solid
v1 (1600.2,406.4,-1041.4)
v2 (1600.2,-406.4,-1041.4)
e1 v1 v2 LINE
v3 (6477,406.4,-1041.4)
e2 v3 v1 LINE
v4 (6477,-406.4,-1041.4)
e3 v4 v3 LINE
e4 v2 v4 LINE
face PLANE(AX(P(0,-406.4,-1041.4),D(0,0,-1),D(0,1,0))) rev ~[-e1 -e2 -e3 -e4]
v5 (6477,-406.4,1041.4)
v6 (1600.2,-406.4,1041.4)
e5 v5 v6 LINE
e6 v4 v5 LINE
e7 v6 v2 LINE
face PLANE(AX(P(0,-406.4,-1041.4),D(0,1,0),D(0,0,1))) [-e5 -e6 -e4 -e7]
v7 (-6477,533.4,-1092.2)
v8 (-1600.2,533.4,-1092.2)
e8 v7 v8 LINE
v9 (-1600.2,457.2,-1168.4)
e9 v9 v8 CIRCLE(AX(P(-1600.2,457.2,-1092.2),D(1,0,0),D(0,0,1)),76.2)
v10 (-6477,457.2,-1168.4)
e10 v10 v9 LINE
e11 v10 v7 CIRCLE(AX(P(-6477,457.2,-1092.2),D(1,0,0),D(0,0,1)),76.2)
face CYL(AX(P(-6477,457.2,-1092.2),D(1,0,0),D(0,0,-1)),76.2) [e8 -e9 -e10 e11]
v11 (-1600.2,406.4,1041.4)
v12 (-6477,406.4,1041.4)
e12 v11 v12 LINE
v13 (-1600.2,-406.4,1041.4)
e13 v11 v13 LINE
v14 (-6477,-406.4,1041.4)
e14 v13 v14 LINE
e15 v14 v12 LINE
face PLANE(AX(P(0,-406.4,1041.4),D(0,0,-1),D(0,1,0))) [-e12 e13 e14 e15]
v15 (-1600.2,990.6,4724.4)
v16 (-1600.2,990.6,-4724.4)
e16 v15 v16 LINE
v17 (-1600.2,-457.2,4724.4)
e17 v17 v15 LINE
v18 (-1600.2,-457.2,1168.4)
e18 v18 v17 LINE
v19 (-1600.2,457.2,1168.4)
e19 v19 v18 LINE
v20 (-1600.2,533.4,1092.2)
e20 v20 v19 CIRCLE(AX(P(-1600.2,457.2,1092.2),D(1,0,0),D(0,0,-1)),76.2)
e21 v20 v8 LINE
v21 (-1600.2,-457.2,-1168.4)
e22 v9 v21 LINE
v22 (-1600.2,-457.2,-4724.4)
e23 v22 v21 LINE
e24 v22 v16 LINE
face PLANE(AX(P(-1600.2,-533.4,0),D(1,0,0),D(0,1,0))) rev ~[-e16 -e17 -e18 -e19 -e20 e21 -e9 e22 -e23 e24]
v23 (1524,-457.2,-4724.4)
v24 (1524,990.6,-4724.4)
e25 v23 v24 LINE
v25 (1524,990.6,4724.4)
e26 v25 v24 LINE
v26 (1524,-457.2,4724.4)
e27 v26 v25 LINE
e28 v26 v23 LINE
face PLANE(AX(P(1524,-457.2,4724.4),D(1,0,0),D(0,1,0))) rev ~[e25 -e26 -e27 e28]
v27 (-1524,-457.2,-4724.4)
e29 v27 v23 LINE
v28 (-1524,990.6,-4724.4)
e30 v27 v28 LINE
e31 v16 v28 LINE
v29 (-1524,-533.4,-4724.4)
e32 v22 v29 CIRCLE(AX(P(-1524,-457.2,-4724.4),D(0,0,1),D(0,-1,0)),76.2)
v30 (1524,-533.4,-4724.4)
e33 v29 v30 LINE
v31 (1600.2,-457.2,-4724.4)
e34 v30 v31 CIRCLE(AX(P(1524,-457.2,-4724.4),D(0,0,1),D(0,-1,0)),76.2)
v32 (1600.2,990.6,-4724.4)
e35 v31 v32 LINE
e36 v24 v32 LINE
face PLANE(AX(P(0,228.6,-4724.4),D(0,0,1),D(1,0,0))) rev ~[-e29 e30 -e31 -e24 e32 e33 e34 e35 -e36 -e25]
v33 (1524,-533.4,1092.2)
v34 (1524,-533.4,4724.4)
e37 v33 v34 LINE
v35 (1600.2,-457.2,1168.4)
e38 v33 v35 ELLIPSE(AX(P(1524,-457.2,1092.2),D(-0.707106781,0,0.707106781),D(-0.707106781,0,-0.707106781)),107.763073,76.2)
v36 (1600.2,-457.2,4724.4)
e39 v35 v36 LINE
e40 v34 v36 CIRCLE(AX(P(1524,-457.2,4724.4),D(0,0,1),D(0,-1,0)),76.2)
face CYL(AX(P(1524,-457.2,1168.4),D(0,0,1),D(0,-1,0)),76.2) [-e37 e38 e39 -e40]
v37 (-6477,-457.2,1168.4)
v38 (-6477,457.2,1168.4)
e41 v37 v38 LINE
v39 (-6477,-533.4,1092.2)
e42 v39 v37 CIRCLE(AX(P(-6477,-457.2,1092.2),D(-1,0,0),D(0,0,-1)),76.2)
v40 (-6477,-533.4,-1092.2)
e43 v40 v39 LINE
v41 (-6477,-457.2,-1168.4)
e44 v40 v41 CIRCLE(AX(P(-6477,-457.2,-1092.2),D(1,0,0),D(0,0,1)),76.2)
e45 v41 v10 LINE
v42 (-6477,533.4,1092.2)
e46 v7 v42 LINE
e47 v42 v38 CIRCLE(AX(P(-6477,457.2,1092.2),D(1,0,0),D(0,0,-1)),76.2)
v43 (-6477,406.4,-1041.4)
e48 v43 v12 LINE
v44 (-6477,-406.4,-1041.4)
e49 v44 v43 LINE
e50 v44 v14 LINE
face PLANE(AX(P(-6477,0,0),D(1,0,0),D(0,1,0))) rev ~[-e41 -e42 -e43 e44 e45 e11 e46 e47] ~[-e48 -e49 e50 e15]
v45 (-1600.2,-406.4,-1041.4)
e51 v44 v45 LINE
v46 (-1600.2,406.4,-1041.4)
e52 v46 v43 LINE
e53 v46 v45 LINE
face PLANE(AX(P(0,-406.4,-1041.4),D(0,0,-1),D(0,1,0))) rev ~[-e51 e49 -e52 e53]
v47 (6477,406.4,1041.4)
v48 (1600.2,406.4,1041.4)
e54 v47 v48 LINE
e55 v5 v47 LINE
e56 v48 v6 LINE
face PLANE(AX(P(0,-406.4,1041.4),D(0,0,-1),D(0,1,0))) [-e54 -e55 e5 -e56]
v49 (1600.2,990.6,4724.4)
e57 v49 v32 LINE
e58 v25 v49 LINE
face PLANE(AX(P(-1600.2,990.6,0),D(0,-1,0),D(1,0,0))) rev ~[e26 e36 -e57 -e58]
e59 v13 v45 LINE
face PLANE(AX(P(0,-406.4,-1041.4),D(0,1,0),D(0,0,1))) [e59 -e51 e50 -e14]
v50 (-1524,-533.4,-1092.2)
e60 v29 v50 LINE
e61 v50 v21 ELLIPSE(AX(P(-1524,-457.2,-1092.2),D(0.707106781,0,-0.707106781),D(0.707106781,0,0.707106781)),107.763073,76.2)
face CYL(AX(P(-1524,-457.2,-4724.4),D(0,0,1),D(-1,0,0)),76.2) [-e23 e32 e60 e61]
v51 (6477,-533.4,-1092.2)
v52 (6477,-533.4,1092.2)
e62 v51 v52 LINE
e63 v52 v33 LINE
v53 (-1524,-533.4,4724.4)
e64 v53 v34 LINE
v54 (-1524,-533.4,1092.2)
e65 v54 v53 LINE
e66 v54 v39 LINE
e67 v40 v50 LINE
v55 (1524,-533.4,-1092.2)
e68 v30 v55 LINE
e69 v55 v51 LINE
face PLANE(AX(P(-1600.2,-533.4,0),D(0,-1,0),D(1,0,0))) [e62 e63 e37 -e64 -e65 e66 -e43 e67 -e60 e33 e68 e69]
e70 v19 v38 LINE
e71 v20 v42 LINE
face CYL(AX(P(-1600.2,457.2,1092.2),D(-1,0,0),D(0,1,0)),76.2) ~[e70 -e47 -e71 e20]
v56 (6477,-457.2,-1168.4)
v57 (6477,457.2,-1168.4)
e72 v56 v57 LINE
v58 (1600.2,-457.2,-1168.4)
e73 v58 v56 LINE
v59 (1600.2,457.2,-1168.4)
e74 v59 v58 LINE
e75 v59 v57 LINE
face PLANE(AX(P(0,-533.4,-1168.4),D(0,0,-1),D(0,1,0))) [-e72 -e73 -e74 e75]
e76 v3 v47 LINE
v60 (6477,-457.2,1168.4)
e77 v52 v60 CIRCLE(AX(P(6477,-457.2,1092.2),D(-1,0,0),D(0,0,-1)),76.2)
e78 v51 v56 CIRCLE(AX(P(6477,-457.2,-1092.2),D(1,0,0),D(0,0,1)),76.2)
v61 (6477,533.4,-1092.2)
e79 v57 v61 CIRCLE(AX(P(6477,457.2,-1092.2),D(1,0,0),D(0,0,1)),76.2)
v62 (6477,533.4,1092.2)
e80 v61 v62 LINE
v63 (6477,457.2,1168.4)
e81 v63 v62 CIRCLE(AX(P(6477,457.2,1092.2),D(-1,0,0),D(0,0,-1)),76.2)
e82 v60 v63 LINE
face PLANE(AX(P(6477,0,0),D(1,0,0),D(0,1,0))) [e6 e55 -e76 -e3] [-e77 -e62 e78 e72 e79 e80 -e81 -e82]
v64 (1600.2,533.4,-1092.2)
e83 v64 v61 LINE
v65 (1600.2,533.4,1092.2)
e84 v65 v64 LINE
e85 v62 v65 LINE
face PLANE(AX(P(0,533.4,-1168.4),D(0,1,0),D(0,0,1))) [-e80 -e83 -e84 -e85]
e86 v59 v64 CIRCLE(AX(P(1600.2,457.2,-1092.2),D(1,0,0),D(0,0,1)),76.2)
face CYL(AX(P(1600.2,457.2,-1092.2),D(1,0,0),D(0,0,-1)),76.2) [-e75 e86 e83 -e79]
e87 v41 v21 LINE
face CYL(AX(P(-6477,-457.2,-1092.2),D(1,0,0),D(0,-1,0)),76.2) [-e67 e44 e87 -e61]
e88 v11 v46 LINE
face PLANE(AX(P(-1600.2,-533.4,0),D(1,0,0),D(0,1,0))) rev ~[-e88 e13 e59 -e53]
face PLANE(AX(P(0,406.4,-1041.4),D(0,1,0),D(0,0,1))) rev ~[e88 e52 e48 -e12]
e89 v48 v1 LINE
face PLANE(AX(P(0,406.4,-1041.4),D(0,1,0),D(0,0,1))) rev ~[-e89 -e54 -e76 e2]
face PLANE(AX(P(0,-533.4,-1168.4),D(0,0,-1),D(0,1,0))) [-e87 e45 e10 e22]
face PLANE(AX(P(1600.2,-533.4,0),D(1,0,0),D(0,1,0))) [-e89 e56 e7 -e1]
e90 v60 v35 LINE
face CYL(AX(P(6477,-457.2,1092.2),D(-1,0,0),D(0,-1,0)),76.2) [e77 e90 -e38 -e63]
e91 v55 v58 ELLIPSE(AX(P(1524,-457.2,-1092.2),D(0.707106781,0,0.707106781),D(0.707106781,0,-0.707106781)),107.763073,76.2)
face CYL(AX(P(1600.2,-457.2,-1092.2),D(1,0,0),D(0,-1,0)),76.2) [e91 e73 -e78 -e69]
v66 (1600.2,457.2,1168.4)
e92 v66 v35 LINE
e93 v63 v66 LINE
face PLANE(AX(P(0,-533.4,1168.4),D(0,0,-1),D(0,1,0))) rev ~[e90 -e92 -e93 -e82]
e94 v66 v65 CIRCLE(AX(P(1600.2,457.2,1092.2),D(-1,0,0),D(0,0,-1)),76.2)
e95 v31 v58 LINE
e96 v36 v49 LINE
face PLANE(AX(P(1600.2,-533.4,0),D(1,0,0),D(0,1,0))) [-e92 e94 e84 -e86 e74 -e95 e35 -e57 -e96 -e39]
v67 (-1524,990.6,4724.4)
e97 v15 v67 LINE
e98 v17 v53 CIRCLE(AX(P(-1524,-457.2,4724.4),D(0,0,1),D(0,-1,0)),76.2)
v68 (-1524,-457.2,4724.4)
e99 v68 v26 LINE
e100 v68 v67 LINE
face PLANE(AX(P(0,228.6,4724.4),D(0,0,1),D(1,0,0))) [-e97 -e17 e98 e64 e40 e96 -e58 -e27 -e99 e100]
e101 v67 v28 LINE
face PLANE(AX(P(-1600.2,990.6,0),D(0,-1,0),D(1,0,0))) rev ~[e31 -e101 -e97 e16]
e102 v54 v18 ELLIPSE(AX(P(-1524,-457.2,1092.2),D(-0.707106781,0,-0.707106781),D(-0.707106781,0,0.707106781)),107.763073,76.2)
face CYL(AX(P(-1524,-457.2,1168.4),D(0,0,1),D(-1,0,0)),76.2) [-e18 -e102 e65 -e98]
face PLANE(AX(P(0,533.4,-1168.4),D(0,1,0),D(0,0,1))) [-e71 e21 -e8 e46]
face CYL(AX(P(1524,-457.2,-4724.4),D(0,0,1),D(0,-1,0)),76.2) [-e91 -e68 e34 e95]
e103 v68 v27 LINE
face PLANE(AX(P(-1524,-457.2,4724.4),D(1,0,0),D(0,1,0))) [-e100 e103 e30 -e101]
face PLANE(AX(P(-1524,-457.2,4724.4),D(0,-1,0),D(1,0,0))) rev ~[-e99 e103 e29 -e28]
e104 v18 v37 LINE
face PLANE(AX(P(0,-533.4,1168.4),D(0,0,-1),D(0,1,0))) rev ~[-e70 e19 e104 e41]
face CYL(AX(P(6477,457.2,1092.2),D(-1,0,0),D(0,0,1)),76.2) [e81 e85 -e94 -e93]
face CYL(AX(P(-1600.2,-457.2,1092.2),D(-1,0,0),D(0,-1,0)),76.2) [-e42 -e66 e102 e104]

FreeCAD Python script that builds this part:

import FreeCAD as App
import Part
import Sketcher
Q = App.Units.Quantity


def edges_at(feature, points):
    """Names of the edges that pass closest to the given points."""
    edges = feature.Shape.Edges
    near = lambda p: min(range(len(edges)), key=lambda i: edges[i].distToShape(Part.Vertex(*p))[0])
    return sorted({f"Edge{near(p) + 1}" for p in points})


def add_polygon(sketch, points):
    """Adds a closed chain of lines whose ends are joined by coincident constraints."""
    first, n = sketch.GeometryCount, len(points)
    for a, b in zip(points, points[1:] + points[:1]):
        sketch.addGeometry(Part.LineSegment(App.Vector(*a, 0), App.Vector(*b, 0)), False)
    for i in range(n):
        sketch.addConstraint(Sketcher.Constraint("Coincident", first + i, 2, first + (i + 1) % n, 1))

doc = App.newDocument("Part")
body = doc.addObject("PartDesign::Body", "Body")

# Sketch on YZ plane
sketch1 = doc.addObject("Sketcher::SketchObject", "Sketch")
body.addObject(sketch1)
sketch1.AttachmentSupport = (doc.YZ_Plane, [""])
sketch1.MapMode = "FlatFace"
add_polygon(sketch1, [(-533.4, 1168.4), (-533.4, -1168.4), (533.4, -1168.4), (533.4, 1168.4)])  # lines 0-3
add_polygon(sketch1, [(406.4, -1041.4), (-406.4, -1041.4), (-406.4, 1041.4), (406.4, 1041.4)])  # lines 4-7
sketch1.addConstraint([
    Sketcher.Constraint("Vertical", 0),
    Sketcher.Constraint("Horizontal", 1),
    Sketcher.Constraint("Vertical", 2),
    Sketcher.Constraint("Horizontal", 3),
    Sketcher.Constraint("Horizontal", 4),
    Sketcher.Constraint("Vertical", 5),
    Sketcher.Constraint("Horizontal", 6),
    Sketcher.Constraint("Vertical", 7),
    Sketcher.Constraint("Symmetric", 0, 2, 2, 2, -1, 1),
    Sketcher.Constraint("Symmetric", 4, 2, 6, 2, -1, 1),
    Sketcher.Constraint("DistanceX", 1, 1, 1, 2, Q("42 in")),
    Sketcher.Constraint("DistanceX", 4, 2, 4, 1, Q("32 in")),
    Sketcher.Constraint("DistanceY", 0, 2, 0, 1, Q("92 in")),
    Sketcher.Constraint("DistanceY", 5, 1, 5, 2, Q("82 in")),
])
pad1 = doc.addObject("PartDesign::Pad", "Pad")
body.addObject(pad1)
pad1.Profile = sketch1
pad1.Length = Q("510 in")
pad1.Midplane = True

# Sketch on XY plane
sketch2 = doc.addObject("Sketcher::SketchObject", "Sketch001")
body.addObject(sketch2)
sketch2.AttachmentSupport = (doc.XY_Plane, [""])
sketch2.MapMode = "FlatFace"
add_polygon(sketch2, [(-1600.2, 990.6), (-1600.2, -533.4), (1600.2, -533.4), (1600.2, 990.6)])  # lines 0-3
sketch2.addConstraint([
    Sketcher.Constraint("Vertical", 0),
    Sketcher.Constraint("Horizontal", 1),
    Sketcher.Constraint("Vertical", 2),
    Sketcher.Constraint("Horizontal", 3),
    Sketcher.Constraint("DistanceX", 1, 1, 1, 2, Q("126 in")),
    Sketcher.Constraint("DistanceY", 0, 2, 0, 1, Q("60 in")),
    Sketcher.Constraint("DistanceX", 0, 2, -1, 1, Q("63 in")),
    Sketcher.Constraint("DistanceY", 0, 2, -1, 1, Q("21 in")),
])
pad2 = doc.addObject("PartDesign::Pad", "Pad001")
body.addObject(pad2)
pad2.Profile = sketch2
pad2.Length = Q("372 in")
pad2.Midplane = True

# Sketch on XY plane
sketch3 = doc.addObject("Sketcher::SketchObject", "Sketch002")
body.addObject(sketch3)
sketch3.AttachmentSupport = (doc.XY_Plane, [""])
sketch3.MapMode = "FlatFace"
sketch3.AttachmentOffset = App.Placement(App.Vector(0, 0, 186 * 25.4), App.Rotation())
add_polygon(sketch3, [(-1524, 990.6), (-1524, -457.2), (1524, -457.2), (1524, 990.6)])  # lines 0-3
sketch3.addConstraint([
    Sketcher.Constraint("Vertical", 0),
    Sketcher.Constraint("Horizontal", 1),
    Sketcher.Constraint("Vertical", 2),
    Sketcher.Constraint("Horizontal", 3),
    Sketcher.Constraint("DistanceX", 1, 1, 1, 2, Q("120 in")),
    Sketcher.Constraint("DistanceY", 0, 2, 0, 1, Q("57 in")),
    Sketcher.Constraint("DistanceX", 0, 2, -1, 1, Q("60 in")),
    Sketcher.Constraint("DistanceY", 0, 2, -1, 1, Q("18 in")),
])
pocket1 = doc.addObject("PartDesign::Pocket", "Pocket")
body.addObject(pocket1)
pocket1.Profile = sketch3
pocket1.Length = Q("372 in")
doc.recompute()

fillet = doc.addObject("PartDesign::Fillet", "Fillet")
body.addObject(fillet)
fillet.Base = (pocket1, edges_at(pocket1, [
    (-4038.6, -533.4, 1168.4),
    (4038.6, -533.4, 1168.4),
    (-4038.6, -533.4, -1168.4),
    (4038.6, -533.4, -1168.4),
    (-1600.2, -533.4, 2946.4),
    (-1600.2, -533.4, -2946.4),
    (1600.2, -533.4, -2946.4),
    (1600.2, -533.4, 2946.4),
    (-4038.6, 533.4, 1168.4),
    (4038.6, 533.4, 1168.4),
    (-4038.6, 533.4, -1168.4),
    (4038.6, 533.4, -1168.4),
]))
fillet.Radius = Q("3 in")

doc.recompute()
